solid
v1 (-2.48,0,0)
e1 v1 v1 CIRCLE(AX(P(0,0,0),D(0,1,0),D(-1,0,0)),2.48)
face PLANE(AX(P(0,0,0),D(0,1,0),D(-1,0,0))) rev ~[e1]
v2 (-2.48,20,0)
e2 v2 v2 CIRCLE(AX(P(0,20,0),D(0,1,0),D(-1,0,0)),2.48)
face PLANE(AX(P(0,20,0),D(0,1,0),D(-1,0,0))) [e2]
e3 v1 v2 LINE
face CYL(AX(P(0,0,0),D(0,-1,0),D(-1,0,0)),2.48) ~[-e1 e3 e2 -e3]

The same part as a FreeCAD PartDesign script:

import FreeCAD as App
import Part
import Sketcher
Q = App.Units.Quantity

doc = App.newDocument("Part")
body = doc.addObject("PartDesign::Body", "Body")

# Sketch on XZ plane
sketch1 = doc.addObject("Sketcher::SketchObject", "Sketch")
body.addObject(sketch1)
sketch1.AttachmentSupport = (doc.XZ_Plane, [""])
sketch1.MapMode = "FlatFace"
sketch1.addGeometry(Part.Circle(App.Vector(0, 0, 0), App.Vector(0, 0, 1), 2.5), False)
sketch1.addConstraint([
    Sketcher.Constraint("Coincident", 0, 3, -1, 1),
    Sketcher.Constraint("Diameter", 0, Q("4.96 mm")),
])
pad1 = doc.addObject("PartDesign::Pad", "Pad")
body.addObject(pad1)
pad1.Profile = sketch1
pad1.Length = 20
pad1.Reversed = True

doc.recompute()
